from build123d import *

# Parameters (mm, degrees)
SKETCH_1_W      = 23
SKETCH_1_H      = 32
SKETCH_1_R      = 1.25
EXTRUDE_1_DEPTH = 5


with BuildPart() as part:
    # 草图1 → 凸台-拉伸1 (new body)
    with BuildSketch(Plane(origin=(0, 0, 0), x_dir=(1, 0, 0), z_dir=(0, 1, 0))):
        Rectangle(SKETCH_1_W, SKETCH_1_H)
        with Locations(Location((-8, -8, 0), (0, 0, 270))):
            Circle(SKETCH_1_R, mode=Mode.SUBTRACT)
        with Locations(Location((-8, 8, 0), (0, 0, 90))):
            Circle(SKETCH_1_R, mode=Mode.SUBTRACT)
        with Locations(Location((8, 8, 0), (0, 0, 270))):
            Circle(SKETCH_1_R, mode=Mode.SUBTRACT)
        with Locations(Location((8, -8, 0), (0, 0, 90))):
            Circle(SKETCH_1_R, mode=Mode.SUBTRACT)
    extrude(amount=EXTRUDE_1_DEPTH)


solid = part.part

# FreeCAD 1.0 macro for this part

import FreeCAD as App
import Part
import Sketcher
Q = App.Units.Quantity

doc = App.newDocument("Part")
body = doc.addObject("PartDesign::Body", "Body")

sketch1 = body.newObject("Sketcher::SketchObject", "Sketch")
sketch1.AttachmentSupport = (doc.getObject("XZ_Plane"), [""])
sketch1.MapMode = "FlatFace"
sketch1.addGeometry([
    Part.LineSegment(App.Vector(-11.5, -16, 0), App.Vector(-11.5, 16, 0)),
    Part.LineSegment(App.Vector(-11.5, 16, 0), App.Vector(11.5, 16, 0)),
    Part.LineSegment(App.Vector(11.5, 16, 0), App.Vector(11.5, -16, 0)),
    Part.LineSegment(App.Vector(11.5, -16, 0), App.Vector(-11.5, -16, 0)),
    Part.Circle(App.Vector(-8, 8, 0), App.Vector(0, 0, 1), 1.2),
    Part.Circle(App.Vector(8, 8, 0), App.Vector(0, 0, 1), 1.2),
    Part.Circle(App.Vector(-8, -8, 0), App.Vector(0, 0, 1), 1.2),
    Part.Circle(App.Vector(8, -8, 0), App.Vector(0, 0, 1), 1.2),
], False)
sketch1.addConstraint([
    Sketcher.Constraint("Coincident", 0, 2, 1, 1),
    Sketcher.Constraint("Coincident", 1, 2, 2, 1),
    Sketcher.Constraint("Coincident", 2, 2, 3, 1),
    Sketcher.Constraint("Coincident", 3, 2, 0, 1),
    Sketcher.Constraint("Vertical", 0),
    Sketcher.Constraint("Horizontal", 1),
    Sketcher.Constraint("Vertical", 2),
    Sketcher.Constraint("Horizontal", 3),
    Sketcher.Constraint("Equal", 4, 5),
    Sketcher.Constraint("Equal", 5, 6),
    Sketcher.Constraint("Equal", 6, 7),
    Sketcher.Constraint("Symmetric", 5, 3, 6, 3, -1, 1),
    Sketcher.Constraint("Symmetric", 4, 3, 7, 3, -1, 1),
    Sketcher.Constraint("Symmetric", 0, 2, 2, 2, -1, 1),
    Sketcher.Constraint("Symmetric", 4, 3, 5, 3, -2),
    Sketcher.Constraint("Diameter", 4, Q("2.5 mm")),
    Sketcher.Constraint("DistanceX", 1, 1, 1, 2, Q("23 mm")),
    Sketcher.Constraint("DistanceY", 0, 1, 0, 2, Q("32 mm")),
    Sketcher.Constraint("DistanceX", 4, 3, -1, 1, Q("8 mm")),
    Sketcher.Constraint("DistanceY", -1, 1, 4, 3, Q("8 mm")),
])
pad1 = body.newObject("PartDesign::Pad", "Pad")
pad1.Profile = sketch1
pad1.Length = 5
pad1.Reversed = True

doc.recompute()
